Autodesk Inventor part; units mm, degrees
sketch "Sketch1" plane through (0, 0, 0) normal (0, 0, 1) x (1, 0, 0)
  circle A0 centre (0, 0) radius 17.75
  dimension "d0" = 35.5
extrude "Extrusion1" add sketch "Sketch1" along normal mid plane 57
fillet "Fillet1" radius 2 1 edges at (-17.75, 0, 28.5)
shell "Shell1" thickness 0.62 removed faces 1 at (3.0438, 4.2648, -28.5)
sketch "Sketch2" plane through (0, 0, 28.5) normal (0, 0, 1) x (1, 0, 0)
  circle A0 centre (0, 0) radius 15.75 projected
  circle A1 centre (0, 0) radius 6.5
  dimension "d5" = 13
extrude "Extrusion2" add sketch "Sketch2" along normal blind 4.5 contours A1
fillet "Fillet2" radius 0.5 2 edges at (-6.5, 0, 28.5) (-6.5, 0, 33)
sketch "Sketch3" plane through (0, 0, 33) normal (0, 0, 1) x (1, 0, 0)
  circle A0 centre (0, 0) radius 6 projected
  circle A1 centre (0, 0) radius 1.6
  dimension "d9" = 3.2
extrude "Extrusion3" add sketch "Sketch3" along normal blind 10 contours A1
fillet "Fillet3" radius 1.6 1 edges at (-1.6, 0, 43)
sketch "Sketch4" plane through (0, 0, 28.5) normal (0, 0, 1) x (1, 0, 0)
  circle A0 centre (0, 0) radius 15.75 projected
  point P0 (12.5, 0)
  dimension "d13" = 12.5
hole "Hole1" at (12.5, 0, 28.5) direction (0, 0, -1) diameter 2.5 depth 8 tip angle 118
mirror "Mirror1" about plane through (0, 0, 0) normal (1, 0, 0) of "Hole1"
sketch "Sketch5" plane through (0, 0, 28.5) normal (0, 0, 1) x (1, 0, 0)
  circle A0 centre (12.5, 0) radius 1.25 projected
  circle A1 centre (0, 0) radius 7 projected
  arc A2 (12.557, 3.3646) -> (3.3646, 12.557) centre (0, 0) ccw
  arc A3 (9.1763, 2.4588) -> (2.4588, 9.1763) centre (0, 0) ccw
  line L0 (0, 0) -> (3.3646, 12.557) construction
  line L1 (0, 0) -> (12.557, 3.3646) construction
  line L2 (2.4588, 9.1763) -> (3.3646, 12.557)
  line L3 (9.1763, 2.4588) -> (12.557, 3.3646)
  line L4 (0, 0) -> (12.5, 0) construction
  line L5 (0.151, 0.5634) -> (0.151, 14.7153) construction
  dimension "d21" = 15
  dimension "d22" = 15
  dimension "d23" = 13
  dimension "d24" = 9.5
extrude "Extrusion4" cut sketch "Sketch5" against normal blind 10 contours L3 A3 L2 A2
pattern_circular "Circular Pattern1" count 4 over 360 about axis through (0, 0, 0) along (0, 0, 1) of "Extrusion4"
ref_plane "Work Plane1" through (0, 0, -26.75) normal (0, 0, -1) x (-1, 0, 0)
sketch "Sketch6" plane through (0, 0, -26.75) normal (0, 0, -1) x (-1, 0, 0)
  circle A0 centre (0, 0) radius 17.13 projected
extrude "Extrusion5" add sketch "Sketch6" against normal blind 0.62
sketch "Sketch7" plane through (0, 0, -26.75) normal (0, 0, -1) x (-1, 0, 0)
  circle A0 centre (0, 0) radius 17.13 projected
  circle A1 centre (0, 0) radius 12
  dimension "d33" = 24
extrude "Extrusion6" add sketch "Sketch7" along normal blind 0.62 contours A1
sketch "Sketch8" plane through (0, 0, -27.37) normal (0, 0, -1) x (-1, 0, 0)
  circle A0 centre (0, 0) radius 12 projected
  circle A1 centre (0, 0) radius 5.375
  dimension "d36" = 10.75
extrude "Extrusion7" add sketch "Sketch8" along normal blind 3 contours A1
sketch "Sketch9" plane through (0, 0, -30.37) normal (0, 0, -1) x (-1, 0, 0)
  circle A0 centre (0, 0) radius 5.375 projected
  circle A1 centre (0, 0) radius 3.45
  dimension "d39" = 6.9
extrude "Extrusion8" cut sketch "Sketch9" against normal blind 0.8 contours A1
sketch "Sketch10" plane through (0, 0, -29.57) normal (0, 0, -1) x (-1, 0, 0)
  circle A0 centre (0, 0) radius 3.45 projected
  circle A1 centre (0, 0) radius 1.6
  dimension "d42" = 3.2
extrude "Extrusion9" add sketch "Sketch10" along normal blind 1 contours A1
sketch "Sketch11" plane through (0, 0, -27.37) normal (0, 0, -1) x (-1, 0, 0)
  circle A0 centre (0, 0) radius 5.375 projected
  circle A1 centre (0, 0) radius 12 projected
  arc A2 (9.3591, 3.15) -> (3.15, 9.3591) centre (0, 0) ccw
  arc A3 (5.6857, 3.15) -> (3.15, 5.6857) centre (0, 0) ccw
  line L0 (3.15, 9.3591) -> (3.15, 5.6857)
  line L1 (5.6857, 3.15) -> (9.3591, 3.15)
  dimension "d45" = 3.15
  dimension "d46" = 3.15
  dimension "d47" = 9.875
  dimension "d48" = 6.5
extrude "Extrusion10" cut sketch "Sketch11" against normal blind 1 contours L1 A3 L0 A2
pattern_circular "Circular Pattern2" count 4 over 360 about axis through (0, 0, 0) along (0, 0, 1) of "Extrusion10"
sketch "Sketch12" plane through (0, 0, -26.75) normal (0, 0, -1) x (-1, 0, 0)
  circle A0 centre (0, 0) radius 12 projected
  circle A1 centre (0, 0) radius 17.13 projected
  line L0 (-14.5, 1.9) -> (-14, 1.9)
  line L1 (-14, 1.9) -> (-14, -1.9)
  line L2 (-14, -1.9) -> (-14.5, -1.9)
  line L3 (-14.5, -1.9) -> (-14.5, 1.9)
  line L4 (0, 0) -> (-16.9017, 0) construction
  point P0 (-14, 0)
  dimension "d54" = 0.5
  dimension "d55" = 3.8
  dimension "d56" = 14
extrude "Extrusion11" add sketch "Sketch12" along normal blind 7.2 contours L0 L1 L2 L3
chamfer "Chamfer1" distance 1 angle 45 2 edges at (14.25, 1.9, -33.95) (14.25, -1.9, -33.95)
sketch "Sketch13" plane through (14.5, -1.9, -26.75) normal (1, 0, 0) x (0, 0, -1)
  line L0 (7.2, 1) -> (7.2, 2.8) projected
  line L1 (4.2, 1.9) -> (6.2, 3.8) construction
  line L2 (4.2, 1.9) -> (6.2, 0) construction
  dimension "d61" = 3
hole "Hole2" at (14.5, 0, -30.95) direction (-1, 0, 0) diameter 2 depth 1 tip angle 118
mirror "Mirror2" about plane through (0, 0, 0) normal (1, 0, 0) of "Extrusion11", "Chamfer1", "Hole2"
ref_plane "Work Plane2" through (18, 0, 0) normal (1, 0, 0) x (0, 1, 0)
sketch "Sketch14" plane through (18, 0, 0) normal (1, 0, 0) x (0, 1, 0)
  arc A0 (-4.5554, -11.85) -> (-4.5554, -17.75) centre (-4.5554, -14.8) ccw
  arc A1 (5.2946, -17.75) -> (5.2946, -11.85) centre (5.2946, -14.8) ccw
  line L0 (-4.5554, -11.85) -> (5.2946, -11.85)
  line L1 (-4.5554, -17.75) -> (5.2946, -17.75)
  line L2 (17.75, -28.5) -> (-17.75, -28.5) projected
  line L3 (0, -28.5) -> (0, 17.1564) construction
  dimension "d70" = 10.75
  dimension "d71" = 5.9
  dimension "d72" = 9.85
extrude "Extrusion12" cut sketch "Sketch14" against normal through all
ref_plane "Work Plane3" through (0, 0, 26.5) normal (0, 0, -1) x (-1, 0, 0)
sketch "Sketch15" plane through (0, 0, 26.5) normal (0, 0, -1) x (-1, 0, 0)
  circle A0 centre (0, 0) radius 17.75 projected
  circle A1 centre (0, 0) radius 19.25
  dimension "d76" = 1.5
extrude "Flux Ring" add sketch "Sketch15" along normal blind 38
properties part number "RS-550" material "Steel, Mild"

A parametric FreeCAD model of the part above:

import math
import FreeCAD as App
import Part
import Sketcher
Q = App.Units.Quantity


def edges_at(feature, points):
    """Names of the edges that pass closest to the given points."""
    edges = feature.Shape.Edges
    near = lambda p: min(range(len(edges)), key=lambda i: edges[i].distToShape(Part.Vertex(*p))[0])
    return sorted({f"Edge{near(p) + 1}" for p in points})


def faces_at(feature, points):
    """Names of the faces that lie closest to the given points."""
    faces = feature.Shape.Faces
    near = lambda p: min(range(len(faces)), key=lambda i: faces[i].distToShape(Part.Vertex(*p))[0])
    return sorted({f"Face{near(p) + 1}" for p in points})

doc = App.newDocument("Part")
body = doc.addObject("PartDesign::Body", "Body")

# Sketch on XY plane
sketch1 = doc.addObject("Sketcher::SketchObject", "Sketch")
body.addObject(sketch1)
sketch1.AttachmentSupport = (doc.XY_Plane, [""])
sketch1.MapMode = "FlatFace"
sketch1.addGeometry(Part.Circle(App.Vector(0, 0, 0), App.Vector(0, 0, 1), 18), False)
sketch1.addConstraint(Sketcher.Constraint("Coincident", 0, 3, -1, 1))
sketch1.addConstraint(Sketcher.Constraint("Diameter", 0, Q("35.5 mm")))
pad1 = doc.addObject("PartDesign::Pad", "Pad")
body.addObject(pad1)
pad1.Profile = sketch1
pad1.Length = 57
pad1.Midplane = True
doc.recompute()

fillet = doc.addObject("PartDesign::Fillet", "Fillet")
body.addObject(fillet)
fillet.Base = (pad1, edges_at(pad1, [(-17.75, 0, 28.5)]))
fillet.Radius = 2
doc.recompute()

thickness = doc.addObject("PartDesign::Thickness", "Thickness")
body.addObject(thickness)
thickness.Base = (fillet, faces_at(fillet, [(3.044, 4.265, -28.5)]))
thickness.Value = 0.62
thickness.Reversed = True
thickness.Join = "Intersection"

# Sketch on XY plane
sketch2 = doc.addObject("Sketcher::SketchObject", "Sketch001")
body.addObject(sketch2)
sketch2.AttachmentSupport = (doc.XY_Plane, [""])
sketch2.MapMode = "FlatFace"
sketch2.AttachmentOffset = App.Placement(App.Vector(0, 0, 28.5), App.Rotation())
sketch2.addGeometry(Part.Circle(App.Vector(0, 0, 0), App.Vector(0, 0, 1), 6), False)
sketch2.addConstraint(Sketcher.Constraint("Coincident", 0, 3, -1, 1))
sketch2.addConstraint(Sketcher.Constraint("Diameter", 0, Q("13 mm")))
pad2 = doc.addObject("PartDesign::Pad", "Pad001")
body.addObject(pad2)
pad2.Profile = sketch2
pad2.Length = 4.5
doc.recompute()

fillet2 = doc.addObject("PartDesign::Fillet", "Fillet001")
body.addObject(fillet2)
fillet2.Base = (pad2, edges_at(pad2, [(-6.5, 0, 28.5), (-6.5, 0, 33)]))
fillet2.Radius = 0.5

# Sketch on XY plane
sketch3 = doc.addObject("Sketcher::SketchObject", "Sketch002")
body.addObject(sketch3)
sketch3.AttachmentSupport = (doc.XY_Plane, [""])
sketch3.MapMode = "FlatFace"
sketch3.AttachmentOffset = App.Placement(App.Vector(0, 0, 33), App.Rotation())
sketch3.addGeometry(Part.Circle(App.Vector(0, 0, 0), App.Vector(0, 0, 1), 1.6), False)
sketch3.addConstraint(Sketcher.Constraint("Coincident", 0, 3, -1, 1))
sketch3.addConstraint(Sketcher.Constraint("Diameter", 0, Q("3.2 mm")))
pad3 = doc.addObject("PartDesign::Pad", "Pad002")
body.addObject(pad3)
pad3.Profile = sketch3
pad3.Length = 10
doc.recompute()

fillet3 = doc.addObject("PartDesign::Fillet", "Fillet002")
body.addObject(fillet3)
fillet3.Base = (pad3, edges_at(pad3, [(-1.6, 0, 43)]))
fillet3.Radius = 1.6

# Sketch on XY plane
sketch4 = doc.addObject("Sketcher::SketchObject", "Sketch003")
body.addObject(sketch4)
sketch4.AttachmentSupport = (doc.XY_Plane, [""])
sketch4.MapMode = "FlatFace"
sketch4.AttachmentOffset = App.Placement(App.Vector(0, 0, 28.5), App.Rotation())
sketch4.addGeometry(Part.Circle(App.Vector(12.5, 0, 0), App.Vector(0, 0, 1), 1.2), False)
sketch4.addConstraint(Sketcher.Constraint("PointOnObject", 0, 3, -1))
sketch4.addConstraint(Sketcher.Constraint("Diameter", 0, Q("2.5 mm")))
sketch4.addConstraint(Sketcher.Constraint("DistanceX", -1, 1, 0, 3, Q("12.5 mm")))
doc.recompute()
hole = doc.addObject("PartDesign::Hole", "Hole")
body.addObject(hole)
hole.Profile = sketch4
hole.ThreadType = "None"
hole.Diameter = 2.5
hole.DepthType = "Dimension"
hole.Depth = 8
hole.DrillPoint = "Angled"
hole.DrillPointAngle = 118
doc.recompute()

mirrored = doc.addObject("PartDesign::Mirrored", "Mirrored")
body.addObject(mirrored)
mirrored.Originals = [hole]
mirrored.MirrorPlane = (doc.YZ_Plane, [""])
body.Tip = mirrored

# Sketch on XY plane
sketch5 = doc.addObject("Sketcher::SketchObject", "Sketch004")
body.addObject(sketch5)
sketch5.AttachmentSupport = (doc.XY_Plane, [""])
sketch5.MapMode = "FlatFace"
sketch5.AttachmentOffset = App.Placement(App.Vector(0, 0, 28.5), App.Rotation())
sketch5.addGeometry(Part.LineSegment(App.Vector(9.2, 2.5, 0), App.Vector(12.6, 3.4, 0)), False)
sketch5.addGeometry(Part.ArcOfCircle(Part.Circle(App.Vector(0, 0, 0), App.Vector(0, 0, 1), 13), math.radians(15), math.radians(75)), False)
sketch5.addGeometry(Part.LineSegment(App.Vector(3.4, 12.6, 0), App.Vector(2.5, 9.2, 0)), False)
sketch5.addGeometry(Part.ArcOfCircle(Part.Circle(App.Vector(0, 0, 0), App.Vector(0, 0, 1), 9.5), math.radians(15), math.radians(75)), False)
sketch5.addConstraint(Sketcher.Constraint("Coincident", 0, 2, 1, 1))
sketch5.addConstraint(Sketcher.Constraint("Coincident", 1, 2, 2, 1))
sketch5.addConstraint(Sketcher.Constraint("Coincident", 2, 2, 3, 2))
sketch5.addConstraint(Sketcher.Constraint("Coincident", 3, 1, 0, 1))
sketch5.addConstraint(Sketcher.Constraint("Coincident", 1, 3, -1, 1))
sketch5.addConstraint(Sketcher.Constraint("Coincident", 3, 3, -1, 1))
sketch5.addConstraint(Sketcher.Constraint("Radius", 1, Q("13 mm")))
sketch5.addConstraint(Sketcher.Constraint("Radius", 3, Q("9.5 mm")))
sketch5.addConstraint(Sketcher.Constraint("Angle", 0, Q("14.999 deg")))
sketch5.addConstraint(Sketcher.Constraint("Angle", 2, Q("-104.999 deg")))
sketch5.addConstraint(Sketcher.Constraint("DistanceX", -1, 1, 0, 2, Q("12.557 mm")))
sketch5.addConstraint(Sketcher.Constraint("DistanceY", -1, 1, 1, 2, Q("12.557 mm")))
pocket1 = doc.addObject("PartDesign::Pocket", "Pocket")
body.addObject(pocket1)
pocket1.Profile = sketch5
pocket1.Length = 10
doc.recompute()

polarpattern = doc.addObject("PartDesign::PolarPattern", "PolarPattern")
body.addObject(polarpattern)
polarpattern.Originals = [pocket1]
polarpattern.Axis = (doc.Z_Axis, [""])
polarpattern.Angle = 360
polarpattern.Occurrences = 4
body.Tip = polarpattern

# Sketch on XY plane
sketch6 = doc.addObject("Sketcher::SketchObject", "Sketch005")
body.addObject(sketch6)
sketch6.AttachmentSupport = (doc.XY_Plane, [""])
sketch6.MapMode = "FlatFace"
sketch6.AttachmentOffset = App.Placement(App.Vector(0, 0, -26.75), App.Rotation())
sketch6.addGeometry(Part.Circle(App.Vector(0, 0, 0), App.Vector(0, 0, 1), 17), False)
sketch6.addConstraint(Sketcher.Constraint("Coincident", 0, 3, -1, 1))
sketch6.addConstraint(Sketcher.Constraint("Diameter", 0, Q("34.26 mm")))
pad4 = doc.addObject("PartDesign::Pad", "Pad003")
body.addObject(pad4)
pad4.Profile = sketch6
pad4.Length = 0.62

# Sketch on XY plane
sketch7 = doc.addObject("Sketcher::SketchObject", "Sketch006")
body.addObject(sketch7)
sketch7.AttachmentSupport = (doc.XY_Plane, [""])
sketch7.MapMode = "FlatFace"
sketch7.AttachmentOffset = App.Placement(App.Vector(0, 0, -26.75), App.Rotation())
sketch7.addGeometry(Part.Circle(App.Vector(0, 0, 0), App.Vector(0, 0, 1), 12), False)
sketch7.addConstraint(Sketcher.Constraint("Coincident", 0, 3, -1, 1))
sketch7.addConstraint(Sketcher.Constraint("Diameter", 0, Q("24 mm")))
pad5 = doc.addObject("PartDesign::Pad", "Pad004")
body.addObject(pad5)
pad5.Profile = sketch7
pad5.Length = 0.62
pad5.Reversed = True

# Sketch on XY plane
sketch8 = doc.addObject("Sketcher::SketchObject", "Sketch007")
body.addObject(sketch8)
sketch8.AttachmentSupport = (doc.XY_Plane, [""])
sketch8.MapMode = "FlatFace"
sketch8.AttachmentOffset = App.Placement(App.Vector(0, 0, -27.37), App.Rotation())
sketch8.addGeometry(Part.Circle(App.Vector(0, 0, 0), App.Vector(0, 0, 1), 5), False)
sketch8.addConstraint(Sketcher.Constraint("Coincident", 0, 3, -1, 1))
sketch8.addConstraint(Sketcher.Constraint("Diameter", 0, Q("10.75 mm")))
pad6 = doc.addObject("PartDesign::Pad", "Pad005")
body.addObject(pad6)
pad6.Profile = sketch8
pad6.Length = 3
pad6.Reversed = True

# Sketch on XY plane
sketch9 = doc.addObject("Sketcher::SketchObject", "Sketch008")
body.addObject(sketch9)
sketch9.AttachmentSupport = (doc.XY_Plane, [""])
sketch9.MapMode = "FlatFace"
sketch9.AttachmentOffset = App.Placement(App.Vector(0, 0, -30.37), App.Rotation())
sketch9.addGeometry(Part.Circle(App.Vector(0, 0, 0), App.Vector(0, 0, 1), 3.5), False)
sketch9.addConstraint(Sketcher.Constraint("Coincident", 0, 3, -1, 1))
sketch9.addConstraint(Sketcher.Constraint("Diameter", 0, Q("6.9 mm")))
pocket2 = doc.addObject("PartDesign::Pocket", "Pocket001")
body.addObject(pocket2)
pocket2.Profile = sketch9
pocket2.Length = 0.8
pocket2.Reversed = True

# Sketch on XY plane
sketch10 = doc.addObject("Sketcher::SketchObject", "Sketch009")
body.addObject(sketch10)
sketch10.AttachmentSupport = (doc.XY_Plane, [""])
sketch10.MapMode = "FlatFace"
sketch10.AttachmentOffset = App.Placement(App.Vector(0, 0, -29.57), App.Rotation())
sketch10.addGeometry(Part.Circle(App.Vector(0, 0, 0), App.Vector(0, 0, 1), 1.6), False)
sketch10.addConstraint(Sketcher.Constraint("Coincident", 0, 3, -1, 1))
sketch10.addConstraint(Sketcher.Constraint("Diameter", 0, Q("3.2 mm")))
pad7 = doc.addObject("PartDesign::Pad", "Pad006")
body.addObject(pad7)
pad7.Profile = sketch10
pad7.Length = 1
pad7.Reversed = True

# Sketch on XY plane
sketch11 = doc.addObject("Sketcher::SketchObject", "Sketch010")
body.addObject(sketch11)
sketch11.AttachmentSupport = (doc.XY_Plane, [""])
sketch11.MapMode = "FlatFace"
sketch11.AttachmentOffset = App.Placement(App.Vector(0, 0, -27.37), App.Rotation())
sketch11.addGeometry(Part.LineSegment(App.Vector(-5.7, 3.1, 0), App.Vector(-9.4, 3.1, 0)), False)
sketch11.addGeometry(Part.ArcOfCircle(Part.Circle(App.Vector(0, 0, 0), App.Vector(0, 0, 1), 9.9), math.radians(109), math.radians(161)), False)
sketch11.addGeometry(Part.LineSegment(App.Vector(-3.1, 9.4, 0), App.Vector(-3.1, 5.7, 0)), False)
sketch11.addGeometry(Part.ArcOfCircle(Part.Circle(App.Vector(0, 0, 0), App.Vector(0, 0, 1), 6.5), math.radians(119), math.radians(151)), False)
sketch11.addConstraint(Sketcher.Constraint("Coincident", 0, 2, 1, 2))
sketch11.addConstraint(Sketcher.Constraint("Coincident", 1, 1, 2, 1))
sketch11.addConstraint(Sketcher.Constraint("Coincident", 2, 2, 3, 1))
sketch11.addConstraint(Sketcher.Constraint("Coincident", 3, 2, 0, 1))
sketch11.addConstraint(Sketcher.Constraint("Horizontal", 0))
sketch11.addConstraint(Sketcher.Constraint("Vertical", 2))
sketch11.addConstraint(Sketcher.Constraint("Coincident", 1, 3, -1, 1))
sketch11.addConstraint(Sketcher.Constraint("Coincident", 3, 3, -1, 1))
sketch11.addConstraint(Sketcher.Constraint("Equal", 0, 2))
sketch11.addConstraint(Sketcher.Constraint("Radius", 3, Q("6.5 mm")))
sketch11.addConstraint(Sketcher.Constraint("Radius", 1, Q("9.875 mm")))
sketch11.addConstraint(Sketcher.Constraint("DistanceY", -1, 1, 0, 2, Q("3.15 mm")))
pocket3 = doc.addObject("PartDesign::Pocket", "Pocket002")
body.addObject(pocket3)
pocket3.Profile = sketch11
pocket3.Length = 1
pocket3.Reversed = True
doc.recompute()

polarpattern2 = doc.addObject("PartDesign::PolarPattern", "PolarPattern001")
body.addObject(polarpattern2)
polarpattern2.Originals = [pocket3]
polarpattern2.Axis = (doc.Z_Axis, [""])
polarpattern2.Angle = 360
polarpattern2.Occurrences = 4
body.Tip = polarpattern2

# Sketch on XY plane
sketch12 = doc.addObject("Sketcher::SketchObject", "Sketch011")
body.addObject(sketch12)
sketch12.AttachmentSupport = (doc.XY_Plane, [""])
sketch12.MapMode = "FlatFace"
sketch12.AttachmentOffset = App.Placement(App.Vector(0, 0, -26.75), App.Rotation())
sketch12.addGeometry(Part.LineSegment(App.Vector(14, 1.9, 0), App.Vector(14.5, 1.9, 0)), False)
sketch12.addGeometry(Part.LineSegment(App.Vector(14.5, 1.9, 0), App.Vector(14.5, -1.9, 0)), False)
sketch12.addGeometry(Part.LineSegment(App.Vector(14.5, -1.9, 0), App.Vector(14, -1.9, 0)), False)
sketch12.addGeometry(Part.LineSegment(App.Vector(14, -1.9, 0), App.Vector(14, 1.9, 0)), False)
sketch12.addConstraint(Sketcher.Constraint("Coincident", 0, 2, 1, 1))
sketch12.addConstraint(Sketcher.Constraint("Coincident", 1, 2, 2, 1))
sketch12.addConstraint(Sketcher.Constraint("Coincident", 2, 2, 3, 1))
sketch12.addConstraint(Sketcher.Constraint("Coincident", 3, 2, 0, 1))
sketch12.addConstraint(Sketcher.Constraint("Horizontal", 0))
sketch12.addConstraint(Sketcher.Constraint("Vertical", 1))
sketch12.addConstraint(Sketcher.Constraint("Horizontal", 2))
sketch12.addConstraint(Sketcher.Constraint("Vertical", 3))
sketch12.addConstraint(Sketcher.Constraint("DistanceX", 0, 1, 0, 2, Q("0.5 mm")))
sketch12.addConstraint(Sketcher.Constraint("DistanceY", 1, 2, 1, 1, Q("3.8 mm")))
sketch12.addConstraint(Sketcher.Constraint("DistanceX", -1, 1, 2, 2, Q("14 mm")))
sketch12.addConstraint(Sketcher.Constraint("DistanceY", -1, 1, 0, 2, Q("1.9 mm")))
pad8 = doc.addObject("PartDesign::Pad", "Pad007")
body.addObject(pad8)
pad8.Profile = sketch12
pad8.Length = 7.2
pad8.Reversed = True
doc.recompute()

chamfer = doc.addObject("PartDesign::Chamfer", "Chamfer")
body.addObject(chamfer)
chamfer.Base = (pad8, edges_at(pad8, [(14.25, 1.9, -33.95), (14.25, -1.9, -33.95)]))
chamfer.Size = 1

# Sketch on YZ plane
sketch13 = doc.addObject("Sketcher::SketchObject", "Sketch012")
body.addObject(sketch13)
sketch13.AttachmentSupport = (doc.YZ_Plane, [""])
sketch13.MapMode = "FlatFace"
sketch13.AttachmentOffset = App.Placement(App.Vector(0, 0, 14.5), App.Rotation())
sketch13.addGeometry(Part.Circle(App.Vector(0, -30.9, 0), App.Vector(0, 0, 1), 1), False)
sketch13.addConstraint(Sketcher.Constraint("PointOnObject", 0, 3, -2))
sketch13.addConstraint(Sketcher.Constraint("Diameter", 0, Q("2 mm")))
sketch13.addConstraint(Sketcher.Constraint("DistanceY", 0, 3, -1, 1, Q("30.95 mm")))
doc.recompute()
hole2 = doc.addObject("PartDesign::Hole", "Hole001")
body.addObject(hole2)
hole2.Profile = sketch13
hole2.ThreadType = "None"
hole2.Diameter = 2
hole2.DepthType = "Dimension"
hole2.Depth = 1
hole2.DrillPoint = "Angled"
hole2.DrillPointAngle = 118
doc.recompute()

mirrored2 = doc.addObject("PartDesign::Mirrored", "Mirrored001")
body.addObject(mirrored2)
mirrored2.Originals = [pad8, chamfer, hole2]
mirrored2.MirrorPlane = (doc.YZ_Plane, [""])
body.Tip = mirrored2

# Sketch on YZ plane
sketch14 = doc.addObject("Sketcher::SketchObject", "Sketch013")
body.addObject(sketch14)
sketch14.AttachmentSupport = (doc.YZ_Plane, [""])
sketch14.MapMode = "FlatFace"
sketch14.AttachmentOffset = App.Placement(App.Vector(0, 0, 18), App.Rotation())
sketch14.addGeometry(Part.LineSegment(App.Vector(5.3, -11.8, 0), App.Vector(-4.6, -11.8, 0)), False)
sketch14.addGeometry(Part.ArcOfCircle(Part.Circle(App.Vector(-4.6, -14.8, 0), App.Vector(0, 0, 1), 3), math.radians(90), math.radians(270)), False)
sketch14.addGeometry(Part.LineSegment(App.Vector(-4.6, -17.8, 0), App.Vector(5.3, -17.8, 0)), False)
sketch14.addGeometry(Part.ArcOfCircle(Part.Circle(App.Vector(5.3, -14.8, 0), App.Vector(0, 0, 1), 2.9), math.radians(-90), math.radians(90)), False)
sketch14.addConstraint(Sketcher.Constraint("Tangent", 0, 2, 1, 1))
sketch14.addConstraint(Sketcher.Constraint("Tangent", 1, 2, 2, 1))
sketch14.addConstraint(Sketcher.Constraint("Tangent", 2, 2, 3, 1))
sketch14.addConstraint(Sketcher.Constraint("Tangent", 3, 2, 0, 1))
sketch14.addConstraint(Sketcher.Constraint("Horizontal", 0))
sketch14.addConstraint(Sketcher.Constraint("Horizontal", 2))
sketch14.addConstraint(Sketcher.Constraint("Radius", 1, Q("2.95 mm")))
sketch14.addConstraint(Sketcher.Constraint("DistanceX", 0, 2, 0, 1, Q("9.85 mm")))
sketch14.addConstraint(Sketcher.Constraint("DistanceY", 1, 3, -1, 1, Q("14.8 mm")))
sketch14.addConstraint(Sketcher.Constraint("DistanceX", 1, 3, -1, 1, Q("4.5554 mm")))
pocket4 = doc.addObject("PartDesign::Pocket", "Pocket003")
body.addObject(pocket4)
pocket4.Profile = sketch14
pocket4.Type = "ThroughAll"

# Sketch on XY plane
sketch15 = doc.addObject("Sketcher::SketchObject", "Sketch014")
body.addObject(sketch15)
sketch15.AttachmentSupport = (doc.XY_Plane, [""])
sketch15.MapMode = "FlatFace"
sketch15.AttachmentOffset = App.Placement(App.Vector(0, 0, 26.5), App.Rotation())
sketch15.addGeometry(Part.Circle(App.Vector(0, 0, 0), App.Vector(0, 0, 1), 19), False)
sketch15.addGeometry(Part.Circle(App.Vector(0, 0, 0), App.Vector(0, 0, 1), 18), False)
sketch15.addConstraint(Sketcher.Constraint("Coincident", 0, 3, -1, 1))
sketch15.addConstraint(Sketcher.Constraint("Coincident", 1, 3, -1, 1))
sketch15.addConstraint(Sketcher.Constraint("Diameter", 0, Q("38.5 mm")))
sketch15.addConstraint(Sketcher.Constraint("Diameter", 1, Q("35.5 mm")))
pad9 = doc.addObject("PartDesign::Pad", "Pad008")
body.addObject(pad9)
pad9.Profile = sketch15
pad9.Length = 38
pad9.Reversed = True

doc.recompute()
